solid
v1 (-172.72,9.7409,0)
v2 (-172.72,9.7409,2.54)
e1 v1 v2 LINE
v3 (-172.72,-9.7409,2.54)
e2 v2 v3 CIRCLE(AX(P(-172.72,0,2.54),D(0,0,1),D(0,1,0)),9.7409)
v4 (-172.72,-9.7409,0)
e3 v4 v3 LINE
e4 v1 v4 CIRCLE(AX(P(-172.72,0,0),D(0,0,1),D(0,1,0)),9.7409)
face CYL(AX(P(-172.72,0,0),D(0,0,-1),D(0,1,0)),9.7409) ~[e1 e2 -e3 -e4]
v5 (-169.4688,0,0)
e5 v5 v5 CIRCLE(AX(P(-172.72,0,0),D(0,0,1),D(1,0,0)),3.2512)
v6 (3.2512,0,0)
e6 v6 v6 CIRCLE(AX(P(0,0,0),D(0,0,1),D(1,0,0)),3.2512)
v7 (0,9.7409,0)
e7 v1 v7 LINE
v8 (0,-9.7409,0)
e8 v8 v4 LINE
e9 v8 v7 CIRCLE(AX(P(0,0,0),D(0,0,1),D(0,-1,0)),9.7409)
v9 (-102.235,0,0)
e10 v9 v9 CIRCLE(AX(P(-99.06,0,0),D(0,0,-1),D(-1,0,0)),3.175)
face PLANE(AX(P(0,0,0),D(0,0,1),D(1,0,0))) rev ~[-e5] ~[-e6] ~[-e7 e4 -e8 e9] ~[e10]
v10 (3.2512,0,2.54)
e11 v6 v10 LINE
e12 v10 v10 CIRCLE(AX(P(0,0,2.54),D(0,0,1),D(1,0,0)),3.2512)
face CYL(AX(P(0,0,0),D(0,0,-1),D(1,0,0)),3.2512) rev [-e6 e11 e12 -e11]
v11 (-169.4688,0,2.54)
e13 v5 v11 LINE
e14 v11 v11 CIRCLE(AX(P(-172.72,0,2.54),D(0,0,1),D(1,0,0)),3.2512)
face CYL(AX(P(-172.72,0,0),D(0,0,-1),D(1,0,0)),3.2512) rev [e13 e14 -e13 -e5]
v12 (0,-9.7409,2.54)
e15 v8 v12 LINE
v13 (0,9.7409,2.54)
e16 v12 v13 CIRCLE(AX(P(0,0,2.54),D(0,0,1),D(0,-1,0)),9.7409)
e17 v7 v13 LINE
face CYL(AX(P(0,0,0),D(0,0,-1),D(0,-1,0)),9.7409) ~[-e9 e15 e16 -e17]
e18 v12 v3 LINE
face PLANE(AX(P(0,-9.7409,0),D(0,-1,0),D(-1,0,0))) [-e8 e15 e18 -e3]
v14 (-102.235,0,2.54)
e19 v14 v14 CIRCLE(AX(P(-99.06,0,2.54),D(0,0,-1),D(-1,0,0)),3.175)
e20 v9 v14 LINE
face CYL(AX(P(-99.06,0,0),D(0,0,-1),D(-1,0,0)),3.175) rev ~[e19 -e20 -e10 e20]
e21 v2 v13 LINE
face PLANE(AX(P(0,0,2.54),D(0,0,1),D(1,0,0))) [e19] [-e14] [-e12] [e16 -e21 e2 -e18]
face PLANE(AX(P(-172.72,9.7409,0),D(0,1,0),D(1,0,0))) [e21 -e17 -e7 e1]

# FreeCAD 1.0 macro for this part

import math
import FreeCAD as App
import Part
import Sketcher
from FreeCAD import Vector
Q = App.Units.Quantity

doc = App.newDocument("Part")
params = doc.addObject("Spreadsheet::Sheet", "Params")
for row, (alias, value) in enumerate([
    ("sketch1_diameter", "0.256 in"),
    ("sketch1_width", "6.8 in"),
    ("pad1_length", "0.1 in"),
    ("sketch2_diameter", "0.25 in"),
], start=1):
    params.set(f"A{row}", alias)
    params.set(f"B{row}", "=" + value)
    params.setAlias(f"B{row}", alias)

body = doc.addObject("PartDesign::Body", "Body")

# Sketch on XY plane
sketch1 = body.newObject("Sketcher::SketchObject", "Sketch")
sketch1.AttachmentSupport = (doc.getObject("XY_Plane"), [""])
sketch1.MapMode = "FlatFace"
sketch1.addGeometry([
    Part.LineSegment(Vector(-172.72, -9.7409, 0), Vector(0, -9.7409, 0)),  # 0
    Part.ArcOfCircle(Part.Circle(Vector(0, 0, 0), Vector(0, 0, 1), 9.7409), math.radians(-90), math.radians(90)),  # 1
    Part.LineSegment(Vector(0, 9.7409, 0), Vector(-172.72, 9.7409, 0)),  # 2
    Part.ArcOfCircle(Part.Circle(Vector(-172.72, 0, 0), Vector(0, 0, 1), 9.7409), math.radians(90), math.radians(270)),  # 3
    Part.Circle(Vector(-172.72, 0, 0), Vector(0, 0, 1), 3.2512),  # 4
    Part.Circle(Vector(0, 0, 0), Vector(0, 0, 1), 3.2512),  # 5
], False)
sketch1.addConstraint([
    Sketcher.Constraint("Tangent", 0, 2, 1, 1),
    Sketcher.Constraint("Tangent", 1, 2, 2, 1),
    Sketcher.Constraint("Tangent", 2, 2, 3, 1),
    Sketcher.Constraint("Tangent", 3, 2, 0, 1),
    Sketcher.Constraint("Horizontal", 0),
    Sketcher.Constraint("Horizontal", 2),
    Sketcher.Constraint("Coincident", 1, 3, -1, 1),
    Sketcher.Constraint("Coincident", 5, 3, -1, 1),
    Sketcher.Constraint("Coincident", 4, 3, 3, 3),
    Sketcher.Constraint("Equal", 4, 5),
    Sketcher.Constraint("Diameter", 4, Q("0.256 in")),
    Sketcher.Constraint("DistanceX", 0, 1, 0, 2, Q("6.8 in")),
    Sketcher.Constraint("Radius", 1, Q("0.3835 in")),
])
sketch1.setExpression("Constraints[10]", "Params.sketch1_diameter")
sketch1.setExpression("Constraints[11]", "Params.sketch1_width")
pad1 = body.newObject("PartDesign::Pad", "Pad")
pad1.Profile = sketch1
pad1.setExpression("Length", "Params.pad1_length")

# Sketch on XY plane
sketch2 = body.newObject("Sketcher::SketchObject", "Sketch001")
sketch2.AttachmentSupport = (doc.getObject("XY_Plane"), [""])
sketch2.MapMode = "FlatFace"
sketch2.addGeometry(Part.Circle(Vector(-99.06, 0, 0), Vector(0, 0, 1), 3.175), False)
sketch2.addConstraint([
    Sketcher.Constraint("PointOnObject", 0, 3, -1),
    Sketcher.Constraint("Diameter", 0, Q("0.25 in")),
    Sketcher.Constraint("DistanceX", 0, 3, -1, 1, Q("3.9 in")),
])
sketch2.setExpression("Constraints[1]", "Params.sketch2_diameter")
pocket1 = body.newObject("PartDesign::Pocket", "Pocket")
pocket1.Profile = sketch2
pocket1.Type = "ThroughAll"
pocket1.Reversed = True

doc.recompute()
